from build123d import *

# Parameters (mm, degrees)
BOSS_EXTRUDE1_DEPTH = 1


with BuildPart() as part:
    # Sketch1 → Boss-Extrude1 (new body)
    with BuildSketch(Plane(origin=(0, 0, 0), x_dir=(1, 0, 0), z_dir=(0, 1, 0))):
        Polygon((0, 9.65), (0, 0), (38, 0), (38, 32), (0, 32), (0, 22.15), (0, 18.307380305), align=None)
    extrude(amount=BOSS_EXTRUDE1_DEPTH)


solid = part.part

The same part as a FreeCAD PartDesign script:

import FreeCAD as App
import Part
import Sketcher


def add_polygon(sketch, points):
    """Adds a closed chain of lines whose ends are joined by coincident constraints."""
    first, n = sketch.GeometryCount, len(points)
    for a, b in zip(points, points[1:] + points[:1]):
        sketch.addGeometry(Part.LineSegment(App.Vector(*a, 0), App.Vector(*b, 0)), False)
    for i in range(n):
        sketch.addConstraint(Sketcher.Constraint("Coincident", first + i, 2, first + (i + 1) % n, 1))

doc = App.newDocument("Part")
body = doc.addObject("PartDesign::Body", "Body")

sketch1 = doc.addObject("Sketcher::SketchObject", "Sketch")
body.addObject(sketch1)
sketch1.AttachmentSupport = (doc.XZ_Plane, [""])
sketch1.MapMode = "FlatFace"
add_polygon(sketch1, [(0, 0), (38, 0), (38, -32), (0, -32)])
sketch1.addConstraint(Sketcher.Constraint("Horizontal", 0))
sketch1.addConstraint(Sketcher.Constraint("Vertical", 1))
sketch1.addConstraint(Sketcher.Constraint("Horizontal", 2))
sketch1.addConstraint(Sketcher.Constraint("Vertical", 3))
sketch1.addConstraint(Sketcher.Constraint("Coincident", 3, 2, -1, 1))
sketch1.addConstraint(Sketcher.Constraint("DistanceX", 0, 1, 0, 2, 38.0))
sketch1.addConstraint(Sketcher.Constraint("DistanceY", 1, 2, 1, 1, 32.0))
pad1 = doc.addObject("PartDesign::Pad", "Pad")
body.addObject(pad1)
pad1.Profile = sketch1
pad1.Length = 1
pad1.Reversed = True

doc.recompute()
